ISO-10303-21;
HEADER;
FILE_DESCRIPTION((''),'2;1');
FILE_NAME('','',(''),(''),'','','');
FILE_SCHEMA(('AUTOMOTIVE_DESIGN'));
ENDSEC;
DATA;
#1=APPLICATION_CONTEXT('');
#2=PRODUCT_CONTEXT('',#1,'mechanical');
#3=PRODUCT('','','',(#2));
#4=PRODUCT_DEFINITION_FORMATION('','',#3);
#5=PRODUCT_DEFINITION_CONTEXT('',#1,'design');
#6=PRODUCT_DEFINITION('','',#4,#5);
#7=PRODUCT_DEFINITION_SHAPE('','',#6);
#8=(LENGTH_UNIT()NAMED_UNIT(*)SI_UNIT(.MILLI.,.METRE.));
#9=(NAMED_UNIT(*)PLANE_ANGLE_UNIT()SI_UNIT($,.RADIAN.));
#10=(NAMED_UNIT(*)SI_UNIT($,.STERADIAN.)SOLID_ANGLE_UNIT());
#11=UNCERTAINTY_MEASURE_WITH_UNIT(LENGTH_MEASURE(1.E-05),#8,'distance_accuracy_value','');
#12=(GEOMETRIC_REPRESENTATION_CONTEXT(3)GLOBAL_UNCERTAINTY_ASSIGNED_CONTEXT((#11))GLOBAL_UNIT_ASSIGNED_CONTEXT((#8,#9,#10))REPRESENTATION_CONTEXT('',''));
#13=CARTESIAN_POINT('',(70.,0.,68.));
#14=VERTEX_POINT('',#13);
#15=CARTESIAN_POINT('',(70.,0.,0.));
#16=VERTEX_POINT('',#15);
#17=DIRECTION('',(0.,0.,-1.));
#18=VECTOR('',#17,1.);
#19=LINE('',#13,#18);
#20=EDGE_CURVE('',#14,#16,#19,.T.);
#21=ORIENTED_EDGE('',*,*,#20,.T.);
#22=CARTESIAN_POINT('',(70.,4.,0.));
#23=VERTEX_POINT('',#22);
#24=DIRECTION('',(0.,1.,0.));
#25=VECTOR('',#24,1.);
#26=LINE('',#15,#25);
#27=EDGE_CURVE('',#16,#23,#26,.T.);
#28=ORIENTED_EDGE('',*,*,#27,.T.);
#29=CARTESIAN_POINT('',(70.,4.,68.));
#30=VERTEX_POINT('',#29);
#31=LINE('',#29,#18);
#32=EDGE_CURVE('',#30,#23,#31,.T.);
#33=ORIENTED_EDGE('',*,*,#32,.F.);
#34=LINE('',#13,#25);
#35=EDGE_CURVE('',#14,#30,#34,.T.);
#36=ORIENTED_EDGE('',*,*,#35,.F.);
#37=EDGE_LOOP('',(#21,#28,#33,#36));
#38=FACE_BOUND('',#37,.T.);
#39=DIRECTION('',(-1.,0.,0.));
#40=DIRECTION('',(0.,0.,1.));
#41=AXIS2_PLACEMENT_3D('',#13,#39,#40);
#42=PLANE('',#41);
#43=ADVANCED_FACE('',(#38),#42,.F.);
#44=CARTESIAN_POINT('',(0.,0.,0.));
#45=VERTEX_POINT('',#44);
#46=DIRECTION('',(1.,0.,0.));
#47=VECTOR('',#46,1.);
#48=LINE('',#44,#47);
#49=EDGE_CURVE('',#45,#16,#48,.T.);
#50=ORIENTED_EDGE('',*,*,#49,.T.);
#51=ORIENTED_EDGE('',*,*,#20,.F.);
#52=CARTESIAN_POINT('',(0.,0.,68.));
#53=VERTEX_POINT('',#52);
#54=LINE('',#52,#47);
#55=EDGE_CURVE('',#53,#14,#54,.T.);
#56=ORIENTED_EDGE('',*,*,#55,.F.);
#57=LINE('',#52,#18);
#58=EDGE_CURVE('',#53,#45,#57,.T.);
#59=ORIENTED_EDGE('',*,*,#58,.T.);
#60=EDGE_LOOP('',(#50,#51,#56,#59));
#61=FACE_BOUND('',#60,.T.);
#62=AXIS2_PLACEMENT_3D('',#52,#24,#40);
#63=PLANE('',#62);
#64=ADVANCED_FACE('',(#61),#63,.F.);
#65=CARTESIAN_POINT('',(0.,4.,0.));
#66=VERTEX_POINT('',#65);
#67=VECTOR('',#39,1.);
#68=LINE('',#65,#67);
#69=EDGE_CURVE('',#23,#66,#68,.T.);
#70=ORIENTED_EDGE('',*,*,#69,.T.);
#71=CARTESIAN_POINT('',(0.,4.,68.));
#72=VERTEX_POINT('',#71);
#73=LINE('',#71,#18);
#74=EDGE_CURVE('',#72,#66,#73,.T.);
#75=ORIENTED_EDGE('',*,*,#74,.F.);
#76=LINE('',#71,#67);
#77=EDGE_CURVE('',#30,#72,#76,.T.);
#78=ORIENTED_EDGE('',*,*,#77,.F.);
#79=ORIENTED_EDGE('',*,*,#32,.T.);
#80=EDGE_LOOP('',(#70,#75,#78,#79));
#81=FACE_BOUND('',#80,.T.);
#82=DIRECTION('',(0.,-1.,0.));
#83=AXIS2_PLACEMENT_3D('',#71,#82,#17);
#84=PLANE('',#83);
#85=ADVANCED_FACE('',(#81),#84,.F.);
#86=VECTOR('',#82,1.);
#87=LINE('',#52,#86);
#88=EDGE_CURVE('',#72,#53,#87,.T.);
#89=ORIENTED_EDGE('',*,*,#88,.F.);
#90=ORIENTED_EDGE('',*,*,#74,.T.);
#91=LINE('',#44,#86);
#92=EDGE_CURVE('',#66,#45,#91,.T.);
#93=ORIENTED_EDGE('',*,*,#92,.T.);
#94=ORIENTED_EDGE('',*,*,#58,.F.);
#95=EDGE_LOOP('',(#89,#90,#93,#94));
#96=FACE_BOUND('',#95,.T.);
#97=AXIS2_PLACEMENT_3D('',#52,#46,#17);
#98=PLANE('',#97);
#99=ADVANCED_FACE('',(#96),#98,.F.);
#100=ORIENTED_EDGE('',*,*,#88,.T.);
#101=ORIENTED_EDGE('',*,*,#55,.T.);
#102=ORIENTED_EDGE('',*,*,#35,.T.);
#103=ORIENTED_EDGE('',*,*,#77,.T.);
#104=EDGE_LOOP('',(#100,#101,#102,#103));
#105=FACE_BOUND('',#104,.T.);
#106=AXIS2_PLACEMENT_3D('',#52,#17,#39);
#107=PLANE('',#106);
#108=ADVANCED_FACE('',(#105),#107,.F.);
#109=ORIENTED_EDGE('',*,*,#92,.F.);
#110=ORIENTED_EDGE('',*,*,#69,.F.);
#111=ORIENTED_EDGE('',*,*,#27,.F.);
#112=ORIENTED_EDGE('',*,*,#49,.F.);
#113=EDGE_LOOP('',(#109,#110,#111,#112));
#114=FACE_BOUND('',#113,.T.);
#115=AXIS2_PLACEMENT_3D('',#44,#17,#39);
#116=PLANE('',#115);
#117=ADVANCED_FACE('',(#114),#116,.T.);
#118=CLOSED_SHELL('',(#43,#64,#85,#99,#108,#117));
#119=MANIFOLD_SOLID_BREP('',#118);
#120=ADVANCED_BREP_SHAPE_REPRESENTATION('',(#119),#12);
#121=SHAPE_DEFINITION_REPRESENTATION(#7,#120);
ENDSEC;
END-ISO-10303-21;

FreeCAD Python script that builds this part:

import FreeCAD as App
import Part
import Sketcher

V = App.Vector


def add_polygon(sketch, points):
    """Adds a closed chain of lines whose ends are joined by coincident constraints."""
    first, n = sketch.GeometryCount, len(points)
    for a, b in zip(points, points[1:] + points[:1]):
        sketch.addGeometry(Part.LineSegment(App.Vector(*a, 0), App.Vector(*b, 0)), False)
    for i in range(n):
        sketch.addConstraint(Sketcher.Constraint("Coincident", first + i, 2, first + (i + 1) % n, 1))

doc = App.newDocument("Part")
body = doc.addObject("PartDesign::Body", "Body")

# Sketch on XY plane
sketch1 = body.newObject("Sketcher::SketchObject", "Sketch")
sketch1.AttachmentSupport = (doc.getObject("XY_Plane"), [""])
sketch1.MapMode = "FlatFace"
add_polygon(sketch1, [(0, 4), (0, 0), (70, 0), (70, 4)])  # lines 0-3
sketch1.addConstraint([
    Sketcher.Constraint("Vertical", 0),
    Sketcher.Constraint("Horizontal", 1),
    Sketcher.Constraint("Vertical", 2),
    Sketcher.Constraint("Horizontal", 3),
    Sketcher.Constraint("Coincident", 0, 2, -1, 1),
    Sketcher.Constraint("DistanceX", 1, 1, 1, 2, 70.0),
    Sketcher.Constraint("DistanceY", 0, 2, 0, 1, 4.0),
])
pad1 = body.newObject("PartDesign::Pad", "Pad")
pad1.Profile = sketch1
pad1.Length = 68

doc.recompute()
